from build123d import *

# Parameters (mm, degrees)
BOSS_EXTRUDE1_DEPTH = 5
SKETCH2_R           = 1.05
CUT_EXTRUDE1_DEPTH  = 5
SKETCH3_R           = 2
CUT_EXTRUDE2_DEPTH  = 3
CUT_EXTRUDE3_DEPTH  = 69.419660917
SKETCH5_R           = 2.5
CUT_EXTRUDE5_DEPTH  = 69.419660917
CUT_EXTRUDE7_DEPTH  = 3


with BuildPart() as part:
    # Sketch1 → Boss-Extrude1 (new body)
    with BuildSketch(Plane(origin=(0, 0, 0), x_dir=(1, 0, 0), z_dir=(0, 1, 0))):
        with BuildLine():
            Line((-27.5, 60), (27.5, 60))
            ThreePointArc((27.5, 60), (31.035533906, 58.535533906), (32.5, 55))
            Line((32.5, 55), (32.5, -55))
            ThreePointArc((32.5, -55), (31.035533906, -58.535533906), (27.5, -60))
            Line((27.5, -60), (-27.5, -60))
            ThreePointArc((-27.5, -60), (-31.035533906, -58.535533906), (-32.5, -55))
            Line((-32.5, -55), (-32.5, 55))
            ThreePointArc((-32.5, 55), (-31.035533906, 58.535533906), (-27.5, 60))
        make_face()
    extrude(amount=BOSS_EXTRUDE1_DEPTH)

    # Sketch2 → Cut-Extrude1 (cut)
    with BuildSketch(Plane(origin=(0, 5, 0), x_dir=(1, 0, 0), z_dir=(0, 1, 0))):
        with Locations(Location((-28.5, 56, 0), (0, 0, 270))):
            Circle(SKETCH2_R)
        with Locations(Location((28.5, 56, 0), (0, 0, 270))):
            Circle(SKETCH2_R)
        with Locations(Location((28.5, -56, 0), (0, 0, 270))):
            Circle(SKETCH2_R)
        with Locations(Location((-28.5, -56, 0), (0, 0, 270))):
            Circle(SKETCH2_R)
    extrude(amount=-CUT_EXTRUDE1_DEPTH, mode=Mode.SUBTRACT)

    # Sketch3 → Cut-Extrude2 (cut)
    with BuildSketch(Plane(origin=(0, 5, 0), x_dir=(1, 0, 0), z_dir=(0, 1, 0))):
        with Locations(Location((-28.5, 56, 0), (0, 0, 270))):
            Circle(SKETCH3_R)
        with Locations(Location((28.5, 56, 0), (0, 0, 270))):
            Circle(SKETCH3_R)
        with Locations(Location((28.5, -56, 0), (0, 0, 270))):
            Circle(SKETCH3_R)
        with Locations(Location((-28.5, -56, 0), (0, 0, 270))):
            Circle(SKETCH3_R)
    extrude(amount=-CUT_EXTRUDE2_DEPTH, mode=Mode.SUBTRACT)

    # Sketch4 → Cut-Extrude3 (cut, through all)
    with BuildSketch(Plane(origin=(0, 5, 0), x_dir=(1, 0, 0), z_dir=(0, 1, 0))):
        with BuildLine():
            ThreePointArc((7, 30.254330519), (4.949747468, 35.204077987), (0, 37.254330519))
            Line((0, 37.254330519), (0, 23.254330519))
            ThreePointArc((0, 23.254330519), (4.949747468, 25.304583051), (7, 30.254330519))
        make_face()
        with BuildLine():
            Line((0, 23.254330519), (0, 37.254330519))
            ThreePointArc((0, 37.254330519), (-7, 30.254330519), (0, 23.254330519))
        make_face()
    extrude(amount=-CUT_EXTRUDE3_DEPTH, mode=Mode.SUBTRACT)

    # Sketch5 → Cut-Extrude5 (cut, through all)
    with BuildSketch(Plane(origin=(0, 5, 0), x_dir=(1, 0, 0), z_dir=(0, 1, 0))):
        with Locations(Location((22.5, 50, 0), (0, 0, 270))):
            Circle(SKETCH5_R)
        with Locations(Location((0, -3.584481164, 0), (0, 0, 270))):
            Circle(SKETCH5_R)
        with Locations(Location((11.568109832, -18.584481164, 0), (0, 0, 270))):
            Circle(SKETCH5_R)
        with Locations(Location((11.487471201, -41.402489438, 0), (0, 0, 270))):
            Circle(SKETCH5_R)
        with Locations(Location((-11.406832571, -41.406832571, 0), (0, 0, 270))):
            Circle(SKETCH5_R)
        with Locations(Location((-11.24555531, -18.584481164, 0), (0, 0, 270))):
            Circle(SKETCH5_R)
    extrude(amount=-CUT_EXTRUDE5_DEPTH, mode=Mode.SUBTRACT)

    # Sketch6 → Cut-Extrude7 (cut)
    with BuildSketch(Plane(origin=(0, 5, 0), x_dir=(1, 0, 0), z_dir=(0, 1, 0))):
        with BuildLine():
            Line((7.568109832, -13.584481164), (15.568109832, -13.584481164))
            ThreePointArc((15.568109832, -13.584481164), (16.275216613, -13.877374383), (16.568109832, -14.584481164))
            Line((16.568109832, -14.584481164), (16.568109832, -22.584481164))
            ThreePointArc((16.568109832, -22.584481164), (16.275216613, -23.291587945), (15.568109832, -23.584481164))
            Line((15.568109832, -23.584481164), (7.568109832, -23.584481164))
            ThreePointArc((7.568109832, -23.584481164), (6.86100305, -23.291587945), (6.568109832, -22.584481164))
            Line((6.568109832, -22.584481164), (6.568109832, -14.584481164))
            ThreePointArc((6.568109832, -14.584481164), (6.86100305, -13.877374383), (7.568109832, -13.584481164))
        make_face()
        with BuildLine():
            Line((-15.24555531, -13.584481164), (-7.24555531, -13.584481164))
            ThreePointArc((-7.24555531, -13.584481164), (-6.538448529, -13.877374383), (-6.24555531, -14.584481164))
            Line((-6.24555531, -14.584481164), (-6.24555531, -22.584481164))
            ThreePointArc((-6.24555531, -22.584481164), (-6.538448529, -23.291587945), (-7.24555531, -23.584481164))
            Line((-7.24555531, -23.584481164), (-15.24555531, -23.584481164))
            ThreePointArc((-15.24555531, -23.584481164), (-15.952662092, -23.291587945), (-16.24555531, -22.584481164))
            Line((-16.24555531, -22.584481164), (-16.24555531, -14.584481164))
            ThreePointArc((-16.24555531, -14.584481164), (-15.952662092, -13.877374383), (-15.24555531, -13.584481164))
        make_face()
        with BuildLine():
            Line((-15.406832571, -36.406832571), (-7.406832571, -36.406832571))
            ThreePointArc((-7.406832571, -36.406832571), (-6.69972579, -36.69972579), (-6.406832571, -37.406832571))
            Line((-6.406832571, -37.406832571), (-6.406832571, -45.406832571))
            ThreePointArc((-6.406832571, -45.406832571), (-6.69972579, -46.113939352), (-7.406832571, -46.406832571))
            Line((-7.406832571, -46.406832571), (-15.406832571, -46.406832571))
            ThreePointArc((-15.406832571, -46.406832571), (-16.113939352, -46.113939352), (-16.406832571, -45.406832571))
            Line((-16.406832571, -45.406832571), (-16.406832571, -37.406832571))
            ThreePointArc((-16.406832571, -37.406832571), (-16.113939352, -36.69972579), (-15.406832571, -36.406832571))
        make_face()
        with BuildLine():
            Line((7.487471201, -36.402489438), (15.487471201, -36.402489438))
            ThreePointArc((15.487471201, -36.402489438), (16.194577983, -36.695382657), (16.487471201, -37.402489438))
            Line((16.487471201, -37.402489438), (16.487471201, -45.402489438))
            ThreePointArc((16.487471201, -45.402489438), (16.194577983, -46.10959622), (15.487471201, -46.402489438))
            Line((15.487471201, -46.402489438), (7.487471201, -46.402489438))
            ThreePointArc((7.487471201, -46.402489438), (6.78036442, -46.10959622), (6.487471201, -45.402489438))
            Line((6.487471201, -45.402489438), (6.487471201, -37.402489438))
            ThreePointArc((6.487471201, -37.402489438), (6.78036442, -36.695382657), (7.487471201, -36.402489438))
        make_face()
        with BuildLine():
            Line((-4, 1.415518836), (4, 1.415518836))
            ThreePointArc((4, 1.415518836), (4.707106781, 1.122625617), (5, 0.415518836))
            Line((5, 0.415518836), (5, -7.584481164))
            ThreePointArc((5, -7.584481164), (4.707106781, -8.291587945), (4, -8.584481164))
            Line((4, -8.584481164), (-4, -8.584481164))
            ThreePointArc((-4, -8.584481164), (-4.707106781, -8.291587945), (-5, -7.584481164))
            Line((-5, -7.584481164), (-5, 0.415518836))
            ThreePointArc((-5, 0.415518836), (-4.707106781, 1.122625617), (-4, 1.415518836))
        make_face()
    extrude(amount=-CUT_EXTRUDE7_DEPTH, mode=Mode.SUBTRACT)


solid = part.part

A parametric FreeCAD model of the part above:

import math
import FreeCAD as App
import Part
import Sketcher

V = App.Vector
Q = App.Units.Quantity

doc = App.newDocument("Part")
body = doc.addObject("PartDesign::Body", "Body")

sketch1 = doc.addObject("Sketcher::SketchObject", "Sketch")
body.addObject(sketch1)
sketch1.AttachmentSupport = (doc.XZ_Plane, [""])
sketch1.MapMode = "FlatFace"
sketch1.addGeometry([
    Part.LineSegment(V(28, -60, 0), V(-28, -60, 0)),
    Part.ArcOfCircle(Part.Circle(V(-28, -55, 0), V(0, 0, 1), 5), math.radians(180), math.radians(270)),
    Part.LineSegment(V(-32, -55, 0), V(-32, 55, 0)),
    Part.ArcOfCircle(Part.Circle(V(-28, 55, 0), V(0, 0, 1), 5), math.radians(90), math.radians(180)),
    Part.LineSegment(V(-28, 60, 0), V(28, 60, 0)),
    Part.ArcOfCircle(Part.Circle(V(28, 55, 0), V(0, 0, 1), 5), math.radians(0), math.radians(90)),
    Part.LineSegment(V(32, 55, 0), V(32, -55, 0)),
    Part.ArcOfCircle(Part.Circle(V(28, -55, 0), V(0, 0, 1), 5), math.radians(-90), math.radians(0)),
], False)
sketch1.addConstraint([
    Sketcher.Constraint("Tangent", 0, 2, 1, 2),
    Sketcher.Constraint("Tangent", 1, 1, 2, 1),
    Sketcher.Constraint("Tangent", 2, 2, 3, 2),
    Sketcher.Constraint("Tangent", 3, 1, 4, 1),
    Sketcher.Constraint("Tangent", 4, 2, 5, 2),
    Sketcher.Constraint("Tangent", 5, 1, 6, 1),
    Sketcher.Constraint("Tangent", 6, 2, 7, 2),
    Sketcher.Constraint("Tangent", 7, 1, 0, 1),
    Sketcher.Constraint("Horizontal", 0),
    Sketcher.Constraint("Vertical", 2),
    Sketcher.Constraint("Horizontal", 4),
    Sketcher.Constraint("Vertical", 6),
    Sketcher.Constraint("Equal", 1, 3),
    Sketcher.Constraint("Equal", 3, 5),
    Sketcher.Constraint("Equal", 5, 7),
    Sketcher.Constraint("Symmetric", 1, 3, 5, 3, -1, 1),
    Sketcher.Constraint("Radius", 1, Q("5 mm")),
    Sketcher.Constraint("DistanceX", 0, 2, 0, 1, Q("55 mm")),
    Sketcher.Constraint("DistanceY", 2, 1, 2, 2, Q("110 mm")),
])
pad1 = doc.addObject("PartDesign::Pad", "Pad")
body.addObject(pad1)
pad1.Profile = sketch1
pad1.Length = 5
pad1.Reversed = True

sketch2 = doc.addObject("Sketcher::SketchObject", "Sketch001")
body.addObject(sketch2)
sketch2.AttachmentSupport = (doc.XZ_Plane, [""])
sketch2.MapMode = "FlatFace"
sketch2.AttachmentOffset = App.Placement(V(0, 0, -5), App.Rotation())
sketch2.addGeometry([
    Part.Circle(V(-28.5, -56, 0), V(0, 0, 1), 1.1),
    Part.Circle(V(28.5, -56, 0), V(0, 0, 1), 1.1),
    Part.Circle(V(28.5, 56, 0), V(0, 0, 1), 1.1),
    Part.Circle(V(-28.5, 56, 0), V(0, 0, 1), 1.1),
], False)
sketch2.addConstraint([
    Sketcher.Constraint("Equal", 0, 1),
    Sketcher.Constraint("Equal", 1, 2),
    Sketcher.Constraint("Equal", 2, 3),
    Sketcher.Constraint("Symmetric", 0, 3, 2, 3, -1, 1),
    Sketcher.Constraint("Symmetric", 1, 3, 3, 3, -1, 1),
    Sketcher.Constraint("Symmetric", 0, 3, 1, 3, -2),
    Sketcher.Constraint("Diameter", 0, Q("2.1 mm")),
    Sketcher.Constraint("DistanceY", 0, 3, -1, 1, Q("56 mm")),
    Sketcher.Constraint("DistanceX", 0, 3, 1, 3, Q("57 mm")),
])
pocket1 = doc.addObject("PartDesign::Pocket", "Pocket")
body.addObject(pocket1)
pocket1.Profile = sketch2
pocket1.Length = 5
pocket1.Reversed = True

sketch3 = doc.addObject("Sketcher::SketchObject", "Sketch002")
body.addObject(sketch3)
sketch3.AttachmentSupport = (doc.XZ_Plane, [""])
sketch3.MapMode = "FlatFace"
sketch3.AttachmentOffset = App.Placement(V(0, 0, -5), App.Rotation())
sketch3.addGeometry([
    Part.Circle(V(-28.5, -56, 0), V(0, 0, 1), 2),
    Part.Circle(V(28.5, -56, 0), V(0, 0, 1), 2),
    Part.Circle(V(28.5, 56, 0), V(0, 0, 1), 2),
    Part.Circle(V(-28.5, 56, 0), V(0, 0, 1), 2),
], False)
sketch3.addConstraint([
    Sketcher.Constraint("Equal", 0, 1),
    Sketcher.Constraint("Equal", 1, 2),
    Sketcher.Constraint("Equal", 2, 3),
    Sketcher.Constraint("Symmetric", 0, 3, 2, 3, -1, 1),
    Sketcher.Constraint("Symmetric", 1, 3, 3, 3, -1, 1),
    Sketcher.Constraint("Symmetric", 0, 3, 1, 3, -2),
    Sketcher.Constraint("Diameter", 0, Q("4 mm")),
    Sketcher.Constraint("DistanceY", 0, 3, -1, 1, Q("56 mm")),
    Sketcher.Constraint("DistanceX", 0, 3, 1, 3, Q("57 mm")),
])
pocket2 = doc.addObject("PartDesign::Pocket", "Pocket001")
body.addObject(pocket2)
pocket2.Profile = sketch3
pocket2.Length = 3
pocket2.Reversed = True

sketch4 = doc.addObject("Sketcher::SketchObject", "Sketch003")
body.addObject(sketch4)
sketch4.AttachmentSupport = (doc.XZ_Plane, [""])
sketch4.MapMode = "FlatFace"
sketch4.AttachmentOffset = App.Placement(V(0, 0, -5), App.Rotation())
sketch4.addGeometry([
    Part.ArcOfCircle(Part.Circle(V(0, -30, 0), V(0, 0, 1), 7), math.radians(-90), math.radians(0)),
    Part.ArcOfCircle(Part.Circle(V(0, -30, 0), V(0, 0, 1), 7), math.radians(90), math.radians(270)),
    Part.ArcOfCircle(Part.Circle(V(0, -30, 0), V(0, 0, 1), 7), math.radians(0), math.radians(90)),
], False)
sketch4.addConstraint([
    Sketcher.Constraint("Tangent", 0, 1, 1, 2),
    Sketcher.Constraint("Tangent", 1, 1, 2, 2),
    Sketcher.Constraint("Tangent", 2, 1, 0, 2),
    Sketcher.Constraint("PointOnObject", 0, 3, -2),
    Sketcher.Constraint("PointOnObject", 0, 1, -2),
    Sketcher.Constraint("PointOnObject", 1, 1, -2),
    Sketcher.Constraint("Horizontal", 1, 3, 2, 1),
    Sketcher.Constraint("Radius", 0, Q("7 mm")),
    Sketcher.Constraint("DistanceY", 0, 3, -1, 1, Q("30.254331 mm")),
])
pocket3 = doc.addObject("PartDesign::Pocket", "Pocket002")
body.addObject(pocket3)
pocket3.Profile = sketch4
pocket3.Type = "ThroughAll"
pocket3.Reversed = True

sketch5 = doc.addObject("Sketcher::SketchObject", "Sketch004")
body.addObject(sketch5)
sketch5.AttachmentSupport = (doc.XZ_Plane, [""])
sketch5.MapMode = "FlatFace"
sketch5.AttachmentOffset = App.Placement(V(0, 0, -5), App.Rotation())
sketch5.addGeometry([
    Part.Circle(V(22.5, -50, 0), V(0, 0, 1), 2.5),
    Part.Circle(V(0, 3.6, 0), V(0, 0, 1), 2.5),
    Part.Circle(V(11.6, 18.6, 0), V(0, 0, 1), 2.5),
    Part.Circle(V(11.5, 41.4, 0), V(0, 0, 1), 2.5),
    Part.Circle(V(-11.4, 41.4, 0), V(0, 0, 1), 2.5),
    Part.Circle(V(-11.2, 18.6, 0), V(0, 0, 1), 2.5),
], False)
sketch5.addConstraint([
    Sketcher.Constraint("Equal", 0, 1),
    Sketcher.Constraint("Equal", 1, 2),
    Sketcher.Constraint("Equal", 2, 3),
    Sketcher.Constraint("Equal", 3, 4),
    Sketcher.Constraint("Equal", 4, 5),
    Sketcher.Constraint("PointOnObject", 1, 3, -2),
    Sketcher.Constraint("Horizontal", 2, 3, 5, 3),
    Sketcher.Constraint("Diameter", 0, Q("5 mm")),
    Sketcher.Constraint("DistanceY", 0, 3, -1, 1, Q("50 mm")),
    Sketcher.Constraint("DistanceY", 1, 3, 2, 3, Q("15 mm")),
    Sketcher.Constraint("DistanceX", -1, 1, 0, 3, Q("22.5 mm")),
    Sketcher.Constraint("DistanceY", -1, 1, 1, 3, Q("3.584481 mm")),
    Sketcher.Constraint("DistanceX", -1, 1, 2, 3, Q("11.56811 mm")),
    Sketcher.Constraint("DistanceX", -1, 1, 3, 3, Q("11.487471 mm")),
    Sketcher.Constraint("DistanceY", -1, 1, 3, 3, Q("41.402489 mm")),
    Sketcher.Constraint("DistanceY", 2, 3, 4, 3, Q("22.822351 mm")),
    Sketcher.Constraint("DistanceX", 4, 3, -1, 1, Q("11.406833 mm")),
    Sketcher.Constraint("DistanceX", 5, 3, -1, 1, Q("11.245555 mm")),
])
pocket4 = doc.addObject("PartDesign::Pocket", "Pocket003")
body.addObject(pocket4)
pocket4.Profile = sketch5
pocket4.Type = "ThroughAll"
pocket4.Reversed = True

sketch6 = doc.addObject("Sketcher::SketchObject", "Sketch005")
body.addObject(sketch6)
sketch6.AttachmentSupport = (doc.XZ_Plane, [""])
sketch6.MapMode = "FlatFace"
sketch6.AttachmentOffset = App.Placement(V(0, 0, -5), App.Rotation())
sketch6.addGeometry([
    Part.LineSegment(V(15.6, 13.6, 0), V(7.6, 13.6, 0)),
    Part.ArcOfCircle(Part.Circle(V(7.6, 14.6, 0), V(0, 0, 1), 1), math.radians(180), math.radians(270)),
    Part.LineSegment(V(6.6, 14.6, 0), V(6.6, 22.6, 0)),
    Part.ArcOfCircle(Part.Circle(V(7.6, 22.6, 0), V(0, 0, 1), 1), math.radians(90), math.radians(180)),
    Part.LineSegment(V(7.6, 23.6, 0), V(15.6, 23.6, 0)),
    Part.ArcOfCircle(Part.Circle(V(15.6, 22.6, 0), V(0, 0, 1), 1), math.radians(0), math.radians(90)),
    Part.LineSegment(V(16.6, 22.6, 0), V(16.6, 14.6, 0)),
    Part.ArcOfCircle(Part.Circle(V(15.6, 14.6, 0), V(0, 0, 1), 1), math.radians(-90), math.radians(0)),
    Part.LineSegment(V(-7.2, 13.6, 0), V(-15.2, 13.6, 0)),
    Part.ArcOfCircle(Part.Circle(V(-15.2, 14.6, 0), V(0, 0, 1), 1), math.radians(180), math.radians(270)),
    Part.LineSegment(V(-16.2, 14.6, 0), V(-16.2, 22.6, 0)),
    Part.ArcOfCircle(Part.Circle(V(-15.2, 22.6, 0), V(0, 0, 1), 1), math.radians(90), math.radians(180)),
    Part.LineSegment(V(-15.2, 23.6, 0), V(-7.2, 23.6, 0)),
    Part.ArcOfCircle(Part.Circle(V(-7.2, 22.6, 0), V(0, 0, 1), 1), math.radians(0), math.radians(90)),
    Part.LineSegment(V(-6.2, 22.6, 0), V(-6.2, 14.6, 0)),
    Part.ArcOfCircle(Part.Circle(V(-7.2, 14.6, 0), V(0, 0, 1), 1), math.radians(-90), math.radians(0)),
    Part.LineSegment(V(-7.4, 36.4, 0), V(-15.4, 36.4, 0)),
    Part.ArcOfCircle(Part.Circle(V(-15.4, 37.4, 0), V(0, 0, 1), 1), math.radians(-180), math.radians(-90)),
    Part.LineSegment(V(-16.4, 37.4, 0), V(-16.4, 45.4, 0)),
    Part.ArcOfCircle(Part.Circle(V(-15.4, 45.4, 0), V(0, 0, 1), 1), math.radians(90), math.radians(180)),
    Part.LineSegment(V(-15.4, 46.4, 0), V(-7.4, 46.4, 0)),
    Part.ArcOfCircle(Part.Circle(V(-7.4, 45.4, 0), V(0, 0, 1), 1), math.radians(0), math.radians(90)),
    Part.LineSegment(V(-6.4, 45.4, 0), V(-6.4, 37.4, 0)),
    Part.ArcOfCircle(Part.Circle(V(-7.4, 37.4, 0), V(0, 0, 1), 1), math.radians(-90), math.radians(0)),
    Part.LineSegment(V(15.5, 36.4, 0), V(7.5, 36.4, 0)),
    Part.ArcOfCircle(Part.Circle(V(7.5, 37.4, 0), V(0, 0, 1), 1), math.radians(-180), math.radians(-90)),
    Part.LineSegment(V(6.5, 37.4, 0), V(6.5, 45.4, 0)),
    Part.ArcOfCircle(Part.Circle(V(7.5, 45.4, 0), V(0, 0, 1), 1), math.radians(90), math.radians(180)),
    Part.LineSegment(V(7.5, 46.4, 0), V(15.5, 46.4, 0)),
    Part.ArcOfCircle(Part.Circle(V(15.5, 45.4, 0), V(0, 0, 1), 1), math.radians(0), math.radians(90)),
    Part.LineSegment(V(16.5, 45.4, 0), V(16.5, 37.4, 0)),
    Part.ArcOfCircle(Part.Circle(V(15.5, 37.4, 0), V(0, 0, 1), 1), math.radians(-90), math.radians(0)),
    Part.LineSegment(V(4, -1.4, 0), V(-4, -1.4, 0)),
    Part.ArcOfCircle(Part.Circle(V(-4, -0.4, 0), V(0, 0, 1), 1), math.radians(-180), math.radians(-90)),
    Part.LineSegment(V(-5, -0.4, 0), V(-5, 7.6, 0)),
    Part.ArcOfCircle(Part.Circle(V(-4, 7.6, 0), V(0, 0, 1), 1), math.radians(90), math.radians(180)),
    Part.LineSegment(V(-4, 8.6, 0), V(4, 8.6, 0)),
    Part.ArcOfCircle(Part.Circle(V(4, 7.6, 0), V(0, 0, 1), 1), math.radians(0), math.radians(90)),
    Part.LineSegment(V(5, 7.6, 0), V(5, -0.4, 0)),
    Part.ArcOfCircle(Part.Circle(V(4, -0.4, 0), V(0, 0, 1), 1), math.radians(-90), math.radians(0)),
], False)
sketch6.addConstraint([
    Sketcher.Constraint("Tangent", 0, 2, 1, 2),
    Sketcher.Constraint("Tangent", 1, 1, 2, 1),
    Sketcher.Constraint("Tangent", 2, 2, 3, 2),
    Sketcher.Constraint("Tangent", 3, 1, 4, 1),
    Sketcher.Constraint("Tangent", 4, 2, 5, 2),
    Sketcher.Constraint("Tangent", 5, 1, 6, 1),
    Sketcher.Constraint("Tangent", 6, 2, 7, 2),
    Sketcher.Constraint("Tangent", 7, 1, 0, 1),
    Sketcher.Constraint("Tangent", 8, 2, 9, 2),
    Sketcher.Constraint("Tangent", 9, 1, 10, 1),
    Sketcher.Constraint("Tangent", 10, 2, 11, 2),
    Sketcher.Constraint("Tangent", 11, 1, 12, 1),
    Sketcher.Constraint("Tangent", 12, 2, 13, 2),
    Sketcher.Constraint("Tangent", 13, 1, 14, 1),
    Sketcher.Constraint("Tangent", 14, 2, 15, 2),
    Sketcher.Constraint("Tangent", 15, 1, 8, 1),
    Sketcher.Constraint("Tangent", 16, 2, 17, 2),
    Sketcher.Constraint("Tangent", 17, 1, 18, 1),
    Sketcher.Constraint("Tangent", 18, 2, 19, 2),
    Sketcher.Constraint("Tangent", 19, 1, 20, 1),
    Sketcher.Constraint("Tangent", 20, 2, 21, 2),
    Sketcher.Constraint("Tangent", 21, 1, 22, 1),
    Sketcher.Constraint("Tangent", 22, 2, 23, 2),
    Sketcher.Constraint("Tangent", 23, 1, 16, 1),
    Sketcher.Constraint("Tangent", 24, 2, 25, 2),
    Sketcher.Constraint("Tangent", 25, 1, 26, 1),
    Sketcher.Constraint("Tangent", 26, 2, 27, 2),
    Sketcher.Constraint("Tangent", 27, 1, 28, 1),
    Sketcher.Constraint("Tangent", 28, 2, 29, 2),
    Sketcher.Constraint("Tangent", 29, 1, 30, 1),
    Sketcher.Constraint("Tangent", 30, 2, 31, 2),
    Sketcher.Constraint("Tangent", 31, 1, 24, 1),
    Sketcher.Constraint("Tangent", 32, 2, 33, 2),
    Sketcher.Constraint("Tangent", 33, 1, 34, 1),
    Sketcher.Constraint("Tangent", 34, 2, 35, 2),
    Sketcher.Constraint("Tangent", 35, 1, 36, 1),
    Sketcher.Constraint("Tangent", 36, 2, 37, 2),
    Sketcher.Constraint("Tangent", 37, 1, 38, 1),
    Sketcher.Constraint("Tangent", 38, 2, 39, 2),
    Sketcher.Constraint("Tangent", 39, 1, 32, 1),
    Sketcher.Constraint("Horizontal", 0),
    Sketcher.Constraint("Vertical", 2),
    Sketcher.Constraint("Horizontal", 4),
    Sketcher.Constraint("Vertical", 6),
    Sketcher.Constraint("Horizontal", 8),
    Sketcher.Constraint("Vertical", 10),
    Sketcher.Constraint("Horizontal", 12),
    Sketcher.Constraint("Vertical", 14),
    Sketcher.Constraint("Horizontal", 16),
    Sketcher.Constraint("Vertical", 18),
    Sketcher.Constraint("Horizontal", 20),
    Sketcher.Constraint("Vertical", 22),
    Sketcher.Constraint("Horizontal", 24),
    Sketcher.Constraint("Vertical", 26),
    Sketcher.Constraint("Horizontal", 28),
    Sketcher.Constraint("Vertical", 30),
    Sketcher.Constraint("Horizontal", 32),
    Sketcher.Constraint("Vertical", 34),
    Sketcher.Constraint("Horizontal", 36),
    Sketcher.Constraint("Vertical", 38),
    Sketcher.Constraint("Equal", 1, 3),
    Sketcher.Constraint("Equal", 3, 5),
    Sketcher.Constraint("Equal", 5, 7),
    Sketcher.Constraint("Equal", 7, 9),
    Sketcher.Constraint("Equal", 9, 11),
    Sketcher.Constraint("Equal", 11, 13),
    Sketcher.Constraint("Equal", 13, 15),
    Sketcher.Constraint("Equal", 15, 17),
    Sketcher.Constraint("Equal", 17, 19),
    Sketcher.Constraint("Equal", 19, 21),
    Sketcher.Constraint("Equal", 21, 23),
    Sketcher.Constraint("Equal", 23, 25),
    Sketcher.Constraint("Equal", 25, 27),
    Sketcher.Constraint("Equal", 27, 29),
    Sketcher.Constraint("Equal", 29, 31),
    Sketcher.Constraint("Equal", 31, 33),
    Sketcher.Constraint("Equal", 33, 35),
    Sketcher.Constraint("Equal", 35, 37),
    Sketcher.Constraint("Equal", 37, 39),
    Sketcher.Constraint("Horizontal", 7, 3, 9, 3),
    Sketcher.Constraint("Horizontal", 5, 3, 11, 3),
    Sketcher.Constraint("Equal", 4, 8),
    Sketcher.Constraint("Equal", 12, 16),
    Sketcher.Constraint("Equal", 20, 24),
    Sketcher.Constraint("Equal", 28, 32),
    Sketcher.Constraint("Equal", 36, 2),
    Sketcher.Constraint("Equal", 14, 18),
    Sketcher.Constraint("Equal", 22, 26),
    Sketcher.Constraint("Equal", 30, 34),
    Sketcher.Constraint("Radius", 1, Q("1 mm")),
    Sketcher.Constraint("DistanceX", 0, 2, 0, 1, Q("8 mm")),
    Sketcher.Constraint("DistanceX", 33, 3, -1, 1, Q("4 mm")),
    Sketcher.Constraint("DistanceY", 33, 3, 15, 3, Q("15 mm")),
    Sketcher.Constraint("DistanceX", -1, 1, 1, 3, Q("7.56811 mm")),
    Sketcher.Constraint("DistanceY", -1, 1, 1, 3, Q("14.584481 mm")),
    Sketcher.Constraint("DistanceX", -1, 1, 25, 3, Q("7.487471 mm")),
    Sketcher.Constraint("DistanceY", -1, 1, 25, 3, Q("37.402489 mm")),
    Sketcher.Constraint("DistanceY", 11, 3, 17, 3, Q("14.822351 mm")),
    Sketcher.Constraint("DistanceX", 9, 3, -1, 1, Q("15.245555 mm")),
    Sketcher.Constraint("DistanceX", 17, 3, -1, 1, Q("15.406833 mm")),
])
pocket5 = doc.addObject("PartDesign::Pocket", "Pocket004")
body.addObject(pocket5)
pocket5.Profile = sketch6
pocket5.Length = 3
pocket5.Reversed = True

doc.recompute()
